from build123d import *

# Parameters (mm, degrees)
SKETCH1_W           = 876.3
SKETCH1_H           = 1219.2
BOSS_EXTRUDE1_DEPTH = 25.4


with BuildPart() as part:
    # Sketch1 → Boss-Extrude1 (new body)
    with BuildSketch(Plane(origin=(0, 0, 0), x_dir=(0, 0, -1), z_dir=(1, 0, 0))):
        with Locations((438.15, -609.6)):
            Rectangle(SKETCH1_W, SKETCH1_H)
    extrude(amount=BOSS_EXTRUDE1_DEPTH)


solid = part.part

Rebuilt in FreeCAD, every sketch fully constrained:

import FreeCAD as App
import Part
import Sketcher

V = App.Vector
Q = App.Units.Quantity

doc = App.newDocument("Part")
body = doc.addObject("PartDesign::Body", "Body")

# Sketch on YZ plane
sketch1 = body.newObject("Sketcher::SketchObject", "Sketch")
sketch1.AttachmentSupport = (doc.getObject("YZ_Plane"), [""])
sketch1.MapMode = "FlatFace"
sketch1.addGeometry([
    Part.LineSegment(V(0, 0, 0), V(-1219, 0, 0)),
    Part.LineSegment(V(-1219, 0, 0), V(-1219, -876, 0)),
    Part.LineSegment(V(-1219, -876, 0), V(0, -876, 0)),
    Part.LineSegment(V(0, -876, 0), V(0, 0, 0)),
], False)
sketch1.addConstraint([
    Sketcher.Constraint("Coincident", 0, 2, 1, 1),
    Sketcher.Constraint("Coincident", 1, 2, 2, 1),
    Sketcher.Constraint("Coincident", 2, 2, 3, 1),
    Sketcher.Constraint("Coincident", 3, 2, 0, 1),
    Sketcher.Constraint("Horizontal", 0),
    Sketcher.Constraint("Vertical", 1),
    Sketcher.Constraint("Horizontal", 2),
    Sketcher.Constraint("Vertical", 3),
    Sketcher.Constraint("Coincident", 3, 2, -1, 1),
    Sketcher.Constraint("DistanceX", 0, 2, 0, 1, Q("48 in")),
    Sketcher.Constraint("DistanceY", 1, 2, 1, 1, Q("34.5 in")),
])
pad1 = body.newObject("PartDesign::Pad", "Pad")
pad1.Profile = sketch1
pad1.Length = Q("1 in")

doc.recompute()
